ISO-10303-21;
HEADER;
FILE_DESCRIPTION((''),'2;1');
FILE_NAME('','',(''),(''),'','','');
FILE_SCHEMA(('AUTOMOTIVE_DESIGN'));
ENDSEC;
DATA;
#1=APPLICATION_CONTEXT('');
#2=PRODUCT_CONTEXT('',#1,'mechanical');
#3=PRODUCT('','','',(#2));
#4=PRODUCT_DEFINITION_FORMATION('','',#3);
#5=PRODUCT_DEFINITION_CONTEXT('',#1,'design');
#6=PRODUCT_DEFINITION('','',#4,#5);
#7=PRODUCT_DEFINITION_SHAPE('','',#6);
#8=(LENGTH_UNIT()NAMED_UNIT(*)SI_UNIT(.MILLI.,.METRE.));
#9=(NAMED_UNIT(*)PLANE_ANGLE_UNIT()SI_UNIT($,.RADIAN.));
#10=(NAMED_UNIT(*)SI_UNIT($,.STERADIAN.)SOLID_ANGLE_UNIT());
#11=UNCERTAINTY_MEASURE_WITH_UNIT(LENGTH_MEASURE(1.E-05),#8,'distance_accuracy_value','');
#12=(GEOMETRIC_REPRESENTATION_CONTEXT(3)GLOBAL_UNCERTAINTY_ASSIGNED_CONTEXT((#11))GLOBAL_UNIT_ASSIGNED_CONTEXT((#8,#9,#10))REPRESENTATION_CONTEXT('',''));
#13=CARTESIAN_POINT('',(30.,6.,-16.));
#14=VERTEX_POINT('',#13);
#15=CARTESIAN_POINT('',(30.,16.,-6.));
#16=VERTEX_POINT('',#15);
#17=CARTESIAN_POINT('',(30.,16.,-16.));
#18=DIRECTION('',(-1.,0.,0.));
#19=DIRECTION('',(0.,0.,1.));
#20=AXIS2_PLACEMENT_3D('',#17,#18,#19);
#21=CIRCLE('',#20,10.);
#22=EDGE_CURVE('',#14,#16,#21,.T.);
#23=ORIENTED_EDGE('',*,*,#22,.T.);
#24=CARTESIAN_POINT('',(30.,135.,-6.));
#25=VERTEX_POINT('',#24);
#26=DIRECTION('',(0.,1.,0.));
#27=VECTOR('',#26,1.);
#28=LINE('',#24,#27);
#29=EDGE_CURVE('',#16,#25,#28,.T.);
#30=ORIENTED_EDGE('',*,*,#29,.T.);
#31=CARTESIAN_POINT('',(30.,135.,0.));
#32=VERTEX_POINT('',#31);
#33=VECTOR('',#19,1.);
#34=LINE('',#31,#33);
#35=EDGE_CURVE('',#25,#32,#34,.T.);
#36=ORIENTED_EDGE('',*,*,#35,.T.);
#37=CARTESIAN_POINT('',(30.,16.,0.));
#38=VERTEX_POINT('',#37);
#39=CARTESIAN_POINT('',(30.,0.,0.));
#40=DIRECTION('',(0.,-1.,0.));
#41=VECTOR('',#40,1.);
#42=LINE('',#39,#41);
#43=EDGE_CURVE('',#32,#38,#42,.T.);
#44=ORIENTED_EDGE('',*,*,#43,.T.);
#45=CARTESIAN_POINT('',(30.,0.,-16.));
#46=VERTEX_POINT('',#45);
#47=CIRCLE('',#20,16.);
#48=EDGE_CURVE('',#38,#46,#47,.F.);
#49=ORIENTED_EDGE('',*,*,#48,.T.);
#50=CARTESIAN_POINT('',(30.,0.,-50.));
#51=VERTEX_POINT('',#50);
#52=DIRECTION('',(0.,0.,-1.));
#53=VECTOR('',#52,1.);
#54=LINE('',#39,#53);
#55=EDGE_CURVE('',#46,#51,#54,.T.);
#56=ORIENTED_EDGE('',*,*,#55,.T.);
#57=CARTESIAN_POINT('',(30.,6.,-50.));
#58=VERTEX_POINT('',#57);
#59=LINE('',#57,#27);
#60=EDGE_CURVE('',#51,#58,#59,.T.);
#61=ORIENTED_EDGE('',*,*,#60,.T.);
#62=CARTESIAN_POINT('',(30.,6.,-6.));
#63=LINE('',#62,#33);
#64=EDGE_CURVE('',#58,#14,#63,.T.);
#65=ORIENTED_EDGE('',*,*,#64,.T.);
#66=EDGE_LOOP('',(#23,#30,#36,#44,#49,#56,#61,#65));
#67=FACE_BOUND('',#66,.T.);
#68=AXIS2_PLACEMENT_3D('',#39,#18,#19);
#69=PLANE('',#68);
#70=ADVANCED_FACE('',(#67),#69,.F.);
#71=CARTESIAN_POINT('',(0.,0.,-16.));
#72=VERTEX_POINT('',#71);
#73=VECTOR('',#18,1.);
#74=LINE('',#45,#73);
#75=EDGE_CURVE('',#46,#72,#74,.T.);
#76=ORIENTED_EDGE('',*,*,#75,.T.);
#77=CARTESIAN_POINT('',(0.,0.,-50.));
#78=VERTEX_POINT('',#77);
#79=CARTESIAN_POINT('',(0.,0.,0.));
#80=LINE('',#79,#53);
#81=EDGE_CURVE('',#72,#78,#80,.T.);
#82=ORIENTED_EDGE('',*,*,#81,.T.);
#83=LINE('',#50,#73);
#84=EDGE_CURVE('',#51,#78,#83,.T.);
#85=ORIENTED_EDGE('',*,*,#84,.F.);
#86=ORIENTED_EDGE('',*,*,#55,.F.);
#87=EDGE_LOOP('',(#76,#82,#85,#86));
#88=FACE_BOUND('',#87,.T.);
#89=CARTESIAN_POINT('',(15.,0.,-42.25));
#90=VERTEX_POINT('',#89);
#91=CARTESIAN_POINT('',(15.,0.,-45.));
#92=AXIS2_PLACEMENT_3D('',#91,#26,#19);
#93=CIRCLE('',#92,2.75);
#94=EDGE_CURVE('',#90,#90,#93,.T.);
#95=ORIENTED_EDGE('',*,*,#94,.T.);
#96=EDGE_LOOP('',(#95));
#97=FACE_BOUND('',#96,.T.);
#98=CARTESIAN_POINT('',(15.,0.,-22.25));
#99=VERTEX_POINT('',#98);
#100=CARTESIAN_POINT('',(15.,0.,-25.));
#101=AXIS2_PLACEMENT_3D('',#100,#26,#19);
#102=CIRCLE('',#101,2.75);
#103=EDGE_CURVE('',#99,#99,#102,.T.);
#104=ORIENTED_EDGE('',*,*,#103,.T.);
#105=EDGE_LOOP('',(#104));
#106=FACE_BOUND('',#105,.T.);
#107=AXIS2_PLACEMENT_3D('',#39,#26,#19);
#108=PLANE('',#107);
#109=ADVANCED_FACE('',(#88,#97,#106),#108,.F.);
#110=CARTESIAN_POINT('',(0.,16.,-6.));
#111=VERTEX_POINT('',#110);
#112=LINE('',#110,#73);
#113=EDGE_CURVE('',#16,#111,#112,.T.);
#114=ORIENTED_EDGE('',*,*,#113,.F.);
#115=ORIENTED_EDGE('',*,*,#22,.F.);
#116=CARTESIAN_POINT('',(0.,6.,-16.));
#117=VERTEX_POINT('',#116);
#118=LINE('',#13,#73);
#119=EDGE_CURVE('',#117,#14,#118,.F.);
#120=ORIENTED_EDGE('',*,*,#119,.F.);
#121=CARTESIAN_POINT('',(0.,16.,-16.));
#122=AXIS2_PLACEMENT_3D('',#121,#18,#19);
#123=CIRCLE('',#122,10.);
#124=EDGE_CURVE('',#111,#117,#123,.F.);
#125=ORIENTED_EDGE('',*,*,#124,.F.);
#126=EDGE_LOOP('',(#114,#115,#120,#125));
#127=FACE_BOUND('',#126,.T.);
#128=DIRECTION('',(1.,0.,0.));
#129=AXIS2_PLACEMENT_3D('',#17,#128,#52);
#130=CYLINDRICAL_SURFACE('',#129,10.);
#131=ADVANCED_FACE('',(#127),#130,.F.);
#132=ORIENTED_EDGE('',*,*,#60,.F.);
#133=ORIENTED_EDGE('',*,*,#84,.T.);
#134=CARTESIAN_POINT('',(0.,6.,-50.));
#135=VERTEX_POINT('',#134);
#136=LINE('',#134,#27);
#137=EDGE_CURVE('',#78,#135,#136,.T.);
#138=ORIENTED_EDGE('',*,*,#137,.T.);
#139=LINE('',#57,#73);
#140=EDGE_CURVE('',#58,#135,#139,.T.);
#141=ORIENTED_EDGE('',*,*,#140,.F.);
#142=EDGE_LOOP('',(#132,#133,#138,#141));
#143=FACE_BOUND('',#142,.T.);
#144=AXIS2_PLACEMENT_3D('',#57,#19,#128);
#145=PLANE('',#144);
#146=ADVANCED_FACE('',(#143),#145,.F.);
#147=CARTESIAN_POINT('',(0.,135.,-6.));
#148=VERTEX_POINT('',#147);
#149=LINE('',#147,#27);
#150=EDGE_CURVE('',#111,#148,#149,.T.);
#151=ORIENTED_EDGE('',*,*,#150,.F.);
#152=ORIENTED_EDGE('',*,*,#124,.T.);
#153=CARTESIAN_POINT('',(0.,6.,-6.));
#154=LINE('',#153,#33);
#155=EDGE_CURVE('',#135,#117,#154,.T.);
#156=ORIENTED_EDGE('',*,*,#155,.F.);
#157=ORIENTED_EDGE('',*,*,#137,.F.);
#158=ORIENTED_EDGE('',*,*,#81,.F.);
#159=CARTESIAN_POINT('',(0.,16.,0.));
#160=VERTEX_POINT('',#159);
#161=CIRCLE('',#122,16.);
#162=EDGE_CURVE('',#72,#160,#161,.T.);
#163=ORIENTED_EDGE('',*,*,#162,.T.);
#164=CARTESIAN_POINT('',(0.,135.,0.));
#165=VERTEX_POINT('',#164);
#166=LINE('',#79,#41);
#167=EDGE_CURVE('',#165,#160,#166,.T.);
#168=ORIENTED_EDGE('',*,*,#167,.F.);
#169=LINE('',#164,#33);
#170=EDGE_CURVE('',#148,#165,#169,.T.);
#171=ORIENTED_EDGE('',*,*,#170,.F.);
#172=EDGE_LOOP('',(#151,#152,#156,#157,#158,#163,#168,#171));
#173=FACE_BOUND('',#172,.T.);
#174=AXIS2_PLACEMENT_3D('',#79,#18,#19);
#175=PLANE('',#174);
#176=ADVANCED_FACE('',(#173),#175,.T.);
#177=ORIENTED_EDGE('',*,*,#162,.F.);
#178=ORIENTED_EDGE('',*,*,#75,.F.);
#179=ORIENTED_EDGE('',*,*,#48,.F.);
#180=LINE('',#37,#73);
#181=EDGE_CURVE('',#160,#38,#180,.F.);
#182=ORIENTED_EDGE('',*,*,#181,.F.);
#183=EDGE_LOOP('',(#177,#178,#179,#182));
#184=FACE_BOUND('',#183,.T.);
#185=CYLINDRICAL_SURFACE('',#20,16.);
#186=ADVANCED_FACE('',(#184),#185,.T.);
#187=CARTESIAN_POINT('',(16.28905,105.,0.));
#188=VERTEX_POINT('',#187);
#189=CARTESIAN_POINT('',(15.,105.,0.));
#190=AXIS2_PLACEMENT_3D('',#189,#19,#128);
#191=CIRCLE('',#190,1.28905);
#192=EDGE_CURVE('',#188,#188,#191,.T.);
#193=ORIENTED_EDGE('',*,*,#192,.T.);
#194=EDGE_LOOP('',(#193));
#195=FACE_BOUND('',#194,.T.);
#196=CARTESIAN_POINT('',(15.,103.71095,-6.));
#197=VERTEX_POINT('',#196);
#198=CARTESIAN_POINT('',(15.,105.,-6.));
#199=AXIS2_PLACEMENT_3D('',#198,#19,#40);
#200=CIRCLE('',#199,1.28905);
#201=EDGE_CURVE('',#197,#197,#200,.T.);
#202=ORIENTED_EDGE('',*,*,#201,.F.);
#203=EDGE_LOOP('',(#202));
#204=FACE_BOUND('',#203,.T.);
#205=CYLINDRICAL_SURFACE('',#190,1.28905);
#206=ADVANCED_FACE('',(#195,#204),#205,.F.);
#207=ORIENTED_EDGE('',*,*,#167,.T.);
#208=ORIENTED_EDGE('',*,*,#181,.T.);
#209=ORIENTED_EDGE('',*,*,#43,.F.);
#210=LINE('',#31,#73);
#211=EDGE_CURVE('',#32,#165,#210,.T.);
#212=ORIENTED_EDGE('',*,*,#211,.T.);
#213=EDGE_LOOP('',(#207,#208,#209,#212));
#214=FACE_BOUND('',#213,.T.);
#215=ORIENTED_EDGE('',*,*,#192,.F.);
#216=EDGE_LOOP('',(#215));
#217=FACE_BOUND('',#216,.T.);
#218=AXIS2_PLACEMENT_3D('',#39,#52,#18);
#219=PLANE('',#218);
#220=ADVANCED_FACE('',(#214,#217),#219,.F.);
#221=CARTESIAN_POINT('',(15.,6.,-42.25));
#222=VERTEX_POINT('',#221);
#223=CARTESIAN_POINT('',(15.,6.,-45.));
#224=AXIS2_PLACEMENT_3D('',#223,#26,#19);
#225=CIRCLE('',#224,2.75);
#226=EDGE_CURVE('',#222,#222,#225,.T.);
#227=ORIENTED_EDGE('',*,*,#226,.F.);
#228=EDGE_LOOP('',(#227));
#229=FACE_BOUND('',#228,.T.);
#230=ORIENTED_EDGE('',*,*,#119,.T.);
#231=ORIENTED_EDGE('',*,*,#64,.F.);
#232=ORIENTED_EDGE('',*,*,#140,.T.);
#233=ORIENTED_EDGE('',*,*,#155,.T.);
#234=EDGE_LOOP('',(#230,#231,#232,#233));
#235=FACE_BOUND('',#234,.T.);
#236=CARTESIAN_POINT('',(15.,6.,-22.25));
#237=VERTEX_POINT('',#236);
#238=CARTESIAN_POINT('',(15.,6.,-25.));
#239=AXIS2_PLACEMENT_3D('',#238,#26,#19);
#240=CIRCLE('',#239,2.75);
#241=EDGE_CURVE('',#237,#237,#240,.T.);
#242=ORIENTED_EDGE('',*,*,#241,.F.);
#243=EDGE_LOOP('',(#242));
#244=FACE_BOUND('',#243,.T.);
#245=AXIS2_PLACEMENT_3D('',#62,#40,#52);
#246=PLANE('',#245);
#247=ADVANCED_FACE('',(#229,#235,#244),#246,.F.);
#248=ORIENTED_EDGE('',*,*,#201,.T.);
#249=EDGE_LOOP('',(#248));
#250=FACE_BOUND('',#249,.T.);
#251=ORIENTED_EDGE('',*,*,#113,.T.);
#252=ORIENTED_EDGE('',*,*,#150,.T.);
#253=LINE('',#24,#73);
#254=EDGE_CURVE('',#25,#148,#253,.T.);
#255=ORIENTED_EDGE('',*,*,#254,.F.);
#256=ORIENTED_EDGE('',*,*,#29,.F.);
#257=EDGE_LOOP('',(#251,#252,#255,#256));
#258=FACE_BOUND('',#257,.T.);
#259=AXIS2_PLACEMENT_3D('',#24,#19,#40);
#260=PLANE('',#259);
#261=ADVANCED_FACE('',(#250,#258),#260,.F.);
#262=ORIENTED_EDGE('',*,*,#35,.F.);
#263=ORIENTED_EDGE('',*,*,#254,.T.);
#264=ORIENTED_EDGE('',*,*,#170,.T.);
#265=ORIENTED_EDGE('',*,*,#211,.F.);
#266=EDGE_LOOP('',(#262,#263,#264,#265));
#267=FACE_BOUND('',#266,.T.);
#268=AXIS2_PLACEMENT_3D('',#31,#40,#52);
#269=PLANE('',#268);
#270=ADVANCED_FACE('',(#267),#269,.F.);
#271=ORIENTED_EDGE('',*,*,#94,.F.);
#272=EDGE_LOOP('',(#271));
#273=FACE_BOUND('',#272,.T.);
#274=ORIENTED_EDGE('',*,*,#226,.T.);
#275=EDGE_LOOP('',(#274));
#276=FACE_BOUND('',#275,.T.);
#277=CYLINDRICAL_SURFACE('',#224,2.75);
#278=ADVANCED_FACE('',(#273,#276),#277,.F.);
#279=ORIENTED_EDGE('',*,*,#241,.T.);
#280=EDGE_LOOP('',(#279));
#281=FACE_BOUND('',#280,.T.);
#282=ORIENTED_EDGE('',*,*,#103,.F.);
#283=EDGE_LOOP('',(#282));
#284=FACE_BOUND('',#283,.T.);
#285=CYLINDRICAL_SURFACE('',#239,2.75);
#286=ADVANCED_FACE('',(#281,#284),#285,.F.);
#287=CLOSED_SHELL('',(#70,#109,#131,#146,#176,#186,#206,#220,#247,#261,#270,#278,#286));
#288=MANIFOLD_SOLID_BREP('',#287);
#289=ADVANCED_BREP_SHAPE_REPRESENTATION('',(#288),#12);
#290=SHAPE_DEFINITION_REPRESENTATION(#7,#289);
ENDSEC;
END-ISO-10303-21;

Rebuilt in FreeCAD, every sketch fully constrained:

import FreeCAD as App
import Part
import Sketcher
from FreeCAD import Vector
Q = App.Units.Quantity


def edges_at(feature, points):
    """Names of the edges that pass closest to the given points."""
    edges = feature.Shape.Edges
    near = lambda p: min(range(len(edges)), key=lambda i: edges[i].distToShape(Part.Vertex(*p))[0])
    return sorted({f"Edge{near(p) + 1}" for p in points})


def add_polygon(sketch, points):
    """Adds a closed chain of lines whose ends are joined by coincident constraints."""
    first, n = sketch.GeometryCount, len(points)
    for a, b in zip(points, points[1:] + points[:1]):
        sketch.addGeometry(Part.LineSegment(App.Vector(*a, 0), App.Vector(*b, 0)), False)
    for i in range(n):
        sketch.addConstraint(Sketcher.Constraint("Coincident", first + i, 2, first + (i + 1) % n, 1))

doc = App.newDocument("Part")
body = doc.addObject("PartDesign::Body", "Body")

# Sketch on YZ plane
sketch1 = doc.addObject("Sketcher::SketchObject", "Sketch")
body.addObject(sketch1)
sketch1.AttachmentSupport = (doc.YZ_Plane, [""])
sketch1.MapMode = "FlatFace"
add_polygon(sketch1, [(0, 0), (0, -50), (6, -50), (6, -6), (135, -6), (135, 0)])  # lines 0-5
sketch1.addConstraint(Sketcher.Constraint("Vertical", 0))
sketch1.addConstraint(Sketcher.Constraint("Horizontal", 1))
sketch1.addConstraint(Sketcher.Constraint("Vertical", 2))
sketch1.addConstraint(Sketcher.Constraint("Horizontal", 3))
sketch1.addConstraint(Sketcher.Constraint("Vertical", 4))
sketch1.addConstraint(Sketcher.Constraint("Horizontal", 5))
sketch1.addConstraint(Sketcher.Constraint("Coincident", 5, 2, -1, 1))
sketch1.addConstraint(Sketcher.Constraint("Equal", 1, 4))
sketch1.addConstraint(Sketcher.Constraint("DistanceX", 1, 1, 1, 2, Q("6 mm")))
sketch1.addConstraint(Sketcher.Constraint("DistanceX", 3, 1, 3, 2, Q("129 mm")))
sketch1.addConstraint(Sketcher.Constraint("DistanceY", 0, 2, 0, 1, Q("50 mm")))
pad1 = doc.addObject("PartDesign::Pad", "Pad")
body.addObject(pad1)
pad1.Profile = sketch1
pad1.Length = 30
doc.recompute()

fillet = doc.addObject("PartDesign::Fillet", "Fillet")
body.addObject(fillet)
fillet.Base = (pad1, edges_at(pad1, [(15, 6, -6)]))
fillet.Radius = 10
doc.recompute()

fillet2 = doc.addObject("PartDesign::Fillet", "Fillet001")
body.addObject(fillet2)
fillet2.Base = (fillet, edges_at(fillet, [(15, 0, 0)]))
fillet2.Radius = 16

# Sketch on XZ plane
sketch2 = doc.addObject("Sketcher::SketchObject", "Sketch001")
body.addObject(sketch2)
sketch2.AttachmentSupport = (doc.XZ_Plane, [""])
sketch2.MapMode = "FlatFace"
sketch2.AttachmentOffset = App.Placement(Vector(0, 0, -6), App.Rotation())
sketch2.addGeometry(Part.Circle(Vector(15, -45, 0), Vector(0, 0, 1), 2.8), False)
sketch2.addGeometry(Part.Circle(Vector(15, -25, 0), Vector(0, 0, 1), 2.8), False)
sketch2.addConstraint(Sketcher.Constraint("Equal", 0, 1))
sketch2.addConstraint(Sketcher.Constraint("Vertical", 0, 3, 1, 3))
sketch2.addConstraint(Sketcher.Constraint("Diameter", 0, Q("5.5 mm")))
sketch2.addConstraint(Sketcher.Constraint("DistanceX", -1, 1, 0, 3, Q("15 mm")))
sketch2.addConstraint(Sketcher.Constraint("DistanceY", 0, 3, -1, 1, Q("45 mm")))
sketch2.addConstraint(Sketcher.Constraint("DistanceY", 1, 3, -1, 1, Q("25 mm")))
doc.recompute()
hole = doc.addObject("PartDesign::Hole", "Hole")
body.addObject(hole)
hole.Profile = sketch2
hole.ThreadType = "None"
hole.Diameter = 5.5
hole.DepthType = "ThroughAll"
hole.Reversed = True

# Sketch on XY plane
sketch3 = doc.addObject("Sketcher::SketchObject", "Sketch002")
body.addObject(sketch3)
sketch3.AttachmentSupport = (doc.XY_Plane, [""])
sketch3.MapMode = "FlatFace"
sketch3.addGeometry(Part.Circle(Vector(15, 105, 0), Vector(0, 0, 1), 1.3), False)
sketch3.addConstraint(Sketcher.Constraint("DistanceX", -1, 1, 0, 3, Q("15 mm")))
sketch3.addConstraint(Sketcher.Constraint("DistanceY", -1, 1, 0, 3, Q("105 mm")))
sketch3.addConstraint(Sketcher.Constraint("Diameter", 0, Q("2.5781 mm")))
doc.recompute()
hole2 = doc.addObject("PartDesign::Hole", "Hole001")
body.addObject(hole2)
hole2.Profile = sketch3
hole2.ThreadType = "None"
hole2.Diameter = 2.5781
hole2.DepthType = "ThroughAll"

doc.recompute()
